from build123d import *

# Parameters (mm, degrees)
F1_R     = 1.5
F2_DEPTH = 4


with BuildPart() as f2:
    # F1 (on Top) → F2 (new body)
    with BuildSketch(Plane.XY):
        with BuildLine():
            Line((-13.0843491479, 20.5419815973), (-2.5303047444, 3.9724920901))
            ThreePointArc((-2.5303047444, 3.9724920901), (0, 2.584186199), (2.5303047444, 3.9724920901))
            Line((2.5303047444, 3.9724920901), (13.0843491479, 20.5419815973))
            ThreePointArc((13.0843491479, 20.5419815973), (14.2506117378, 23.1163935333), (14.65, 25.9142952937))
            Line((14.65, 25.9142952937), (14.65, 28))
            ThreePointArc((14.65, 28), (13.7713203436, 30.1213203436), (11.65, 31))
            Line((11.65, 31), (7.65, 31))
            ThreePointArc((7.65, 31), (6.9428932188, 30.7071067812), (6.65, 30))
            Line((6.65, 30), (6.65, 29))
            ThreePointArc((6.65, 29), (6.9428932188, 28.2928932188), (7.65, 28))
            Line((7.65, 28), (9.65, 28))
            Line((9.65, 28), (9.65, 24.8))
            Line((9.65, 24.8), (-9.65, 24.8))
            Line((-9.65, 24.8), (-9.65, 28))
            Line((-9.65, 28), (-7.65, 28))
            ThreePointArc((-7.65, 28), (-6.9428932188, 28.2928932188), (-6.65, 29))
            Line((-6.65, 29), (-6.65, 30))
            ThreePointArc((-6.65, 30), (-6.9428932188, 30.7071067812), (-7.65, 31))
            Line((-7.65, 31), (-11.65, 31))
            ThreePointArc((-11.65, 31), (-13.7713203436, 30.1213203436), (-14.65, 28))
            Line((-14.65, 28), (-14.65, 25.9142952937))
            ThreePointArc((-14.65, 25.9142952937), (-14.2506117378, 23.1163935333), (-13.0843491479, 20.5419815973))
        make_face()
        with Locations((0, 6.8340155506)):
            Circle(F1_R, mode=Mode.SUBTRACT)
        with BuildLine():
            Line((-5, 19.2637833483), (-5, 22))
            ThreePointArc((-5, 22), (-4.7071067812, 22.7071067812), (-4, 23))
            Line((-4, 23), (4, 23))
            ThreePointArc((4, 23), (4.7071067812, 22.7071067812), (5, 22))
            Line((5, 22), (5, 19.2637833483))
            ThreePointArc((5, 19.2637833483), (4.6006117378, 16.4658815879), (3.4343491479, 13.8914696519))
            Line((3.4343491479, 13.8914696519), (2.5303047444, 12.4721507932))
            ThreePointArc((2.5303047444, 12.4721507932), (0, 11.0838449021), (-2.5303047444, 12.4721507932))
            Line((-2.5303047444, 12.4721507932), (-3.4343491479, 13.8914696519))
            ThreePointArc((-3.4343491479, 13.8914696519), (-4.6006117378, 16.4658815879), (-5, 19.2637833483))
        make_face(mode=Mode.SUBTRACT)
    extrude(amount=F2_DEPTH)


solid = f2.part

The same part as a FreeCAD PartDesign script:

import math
import FreeCAD as App
import Part
import Sketcher

V = App.Vector
Q = App.Units.Quantity

doc = App.newDocument("Part")
body = doc.addObject("PartDesign::Body", "Body")

sketch1 = body.newObject("Sketcher::SketchObject", "Sketch")
sketch1.AttachmentSupport = (doc.getObject("XY_Plane"), [""])
sketch1.MapMode = "FlatFace"
sketch1.addGeometry([
    Part.LineSegment(V(-13.084349, 20.541982, 0), V(-2.530305, 3.972492, 0)),
    Part.ArcOfCircle(Part.Circle(V(0, 5.584186, 0), V(0, 0, 1), 3), math.radians(-147.504636), math.radians(-32.495364)),
    Part.LineSegment(V(2.530305, 3.972492, 0), V(13.084349, 20.541982, 0)),
    Part.ArcOfCircle(Part.Circle(V(4.65, 25.914295, 0), V(0, 0, 1), 10), math.radians(-32.495364), math.radians(0)),
    Part.LineSegment(V(14.65, 25.914295, 0), V(14.65, 28, 0)),
    Part.ArcOfCircle(Part.Circle(V(11.65, 28, 0), V(0, 0, 1), 3), math.radians(0), math.radians(90)),
    Part.LineSegment(V(11.65, 31, 0), V(7.65, 31, 0)),
    Part.ArcOfCircle(Part.Circle(V(7.65, 30, 0), V(0, 0, 1), 1), math.radians(90), math.radians(180)),
    Part.LineSegment(V(6.65, 30, 0), V(6.65, 29, 0)),
    Part.ArcOfCircle(Part.Circle(V(7.65, 29, 0), V(0, 0, 1), 1), math.radians(180), math.radians(270)),
    Part.LineSegment(V(7.65, 28, 0), V(9.65, 28, 0)),
    Part.LineSegment(V(9.65, 28, 0), V(9.65, 24.8, 0)),
    Part.LineSegment(V(9.65, 24.8, 0), V(-9.65, 24.8, 0)),
    Part.LineSegment(V(-9.65, 24.8, 0), V(-9.65, 28, 0)),
    Part.LineSegment(V(-9.65, 28, 0), V(-7.65, 28, 0)),
    Part.ArcOfCircle(Part.Circle(V(-7.65, 29, 0), V(0, 0, 1), 1), math.radians(-90), math.radians(0)),
    Part.LineSegment(V(-6.65, 29, 0), V(-6.65, 30, 0)),
    Part.ArcOfCircle(Part.Circle(V(-7.65, 30, 0), V(0, 0, 1), 1), math.radians(0), math.radians(90)),
    Part.LineSegment(V(-7.65, 31, 0), V(-11.65, 31, 0)),
    Part.ArcOfCircle(Part.Circle(V(-11.65, 28, 0), V(0, 0, 1), 3), math.radians(90), math.radians(180)),
    Part.LineSegment(V(-14.65, 28, 0), V(-14.65, 25.914295, 0)),
    Part.ArcOfCircle(Part.Circle(V(-4.65, 25.914295, 0), V(0, 0, 1), 10), math.radians(180), math.radians(212.495364)),
    Part.Circle(V(0, 6.834016, 0), V(0, 0, 1), 1.5),
    Part.ArcOfCircle(Part.Circle(V(5, 19.263783, 0), V(0, 0, 1), 10), math.radians(180), math.radians(212.495364)),
    Part.LineSegment(V(-5, 19.263783, 0), V(-5, 22, 0)),
    Part.ArcOfCircle(Part.Circle(V(-4, 22, 0), V(0, 0, 1), 1), math.radians(90), math.radians(180)),
    Part.LineSegment(V(-4, 23, 0), V(4, 23, 0)),
    Part.ArcOfCircle(Part.Circle(V(4, 22, 0), V(0, 0, 1), 1), math.radians(0), math.radians(90)),
    Part.LineSegment(V(5, 22, 0), V(5, 19.263783, 0)),
    Part.ArcOfCircle(Part.Circle(V(-5, 19.263783, 0), V(0, 0, 1), 10), math.radians(-32.495364), math.radians(0)),
    Part.LineSegment(V(3.434349, 13.89147, 0), V(2.530305, 12.472151, 0)),
    Part.ArcOfCircle(Part.Circle(V(0, 14.083845, 0), V(0, 0, 1), 3), math.radians(-147.504636), math.radians(-32.495364)),
    Part.LineSegment(V(-2.530305, 12.472151, 0), V(-3.434349, 13.89147, 0)),
], False)
sketch1.addConstraint([
    Sketcher.Constraint("Tangent", 0, 2, 1, 1),
    Sketcher.Constraint("Tangent", 1, 2, 2, 1),
    Sketcher.Constraint("Tangent", 2, 2, 3, 1),
    Sketcher.Constraint("Tangent", 3, 2, 4, 1),
    Sketcher.Constraint("Tangent", 4, 2, 5, 1),
    Sketcher.Constraint("Tangent", 5, 2, 6, 1),
    Sketcher.Constraint("Tangent", 6, 2, 7, 1),
    Sketcher.Constraint("Tangent", 7, 2, 8, 1),
    Sketcher.Constraint("Tangent", 8, 2, 9, 1),
    Sketcher.Constraint("Tangent", 9, 2, 10, 1),
    Sketcher.Constraint("Coincident", 10, 2, 11, 1),
    Sketcher.Constraint("Coincident", 11, 2, 12, 1),
    Sketcher.Constraint("Coincident", 12, 2, 13, 1),
    Sketcher.Constraint("Coincident", 13, 2, 14, 1),
    Sketcher.Constraint("Tangent", 14, 2, 15, 1),
    Sketcher.Constraint("Tangent", 15, 2, 16, 1),
    Sketcher.Constraint("Tangent", 16, 2, 17, 1),
    Sketcher.Constraint("Tangent", 17, 2, 18, 1),
    Sketcher.Constraint("Tangent", 18, 2, 19, 1),
    Sketcher.Constraint("Tangent", 19, 2, 20, 1),
    Sketcher.Constraint("Tangent", 20, 2, 21, 1),
    Sketcher.Constraint("Tangent", 21, 2, 0, 1),
    Sketcher.Constraint("Tangent", 23, 1, 24, 1),
    Sketcher.Constraint("Tangent", 24, 2, 25, 2),
    Sketcher.Constraint("Tangent", 25, 1, 26, 1),
    Sketcher.Constraint("Tangent", 26, 2, 27, 2),
    Sketcher.Constraint("Tangent", 27, 1, 28, 1),
    Sketcher.Constraint("Tangent", 28, 2, 29, 2),
    Sketcher.Constraint("Tangent", 29, 1, 30, 1),
    Sketcher.Constraint("Tangent", 30, 2, 31, 2),
    Sketcher.Constraint("Tangent", 31, 1, 32, 1),
    Sketcher.Constraint("Tangent", 32, 2, 23, 2),
    Sketcher.Constraint("Vertical", 4),
    Sketcher.Constraint("Horizontal", 6),
    Sketcher.Constraint("Vertical", 8),
    Sketcher.Constraint("Horizontal", 10),
    Sketcher.Constraint("Vertical", 11),
    Sketcher.Constraint("Horizontal", 12),
    Sketcher.Constraint("Vertical", 13),
    Sketcher.Constraint("Horizontal", 14),
    Sketcher.Constraint("Vertical", 16),
    Sketcher.Constraint("Horizontal", 18),
    Sketcher.Constraint("Vertical", 20),
    Sketcher.Constraint("Vertical", 24),
    Sketcher.Constraint("Horizontal", 26),
    Sketcher.Constraint("Vertical", 28),
    Sketcher.Constraint("Coincident", 23, 1, 29, 3),
    Sketcher.Constraint("Equal", 1, 5),
    Sketcher.Constraint("Equal", 7, 9),
    Sketcher.Constraint("Equal", 9, 15),
    Sketcher.Constraint("Equal", 15, 17),
    Sketcher.Constraint("Equal", 5, 19),
    Sketcher.Constraint("Equal", 3, 21),
    Sketcher.Constraint("Equal", 21, 23),
    Sketcher.Constraint("Equal", 17, 25),
    Sketcher.Constraint("Equal", 25, 27),
    Sketcher.Constraint("Equal", 23, 29),
    Sketcher.Constraint("Equal", 19, 31),
    Sketcher.Constraint("Symmetric", 9, 3, 15, 3, -2),
    Sketcher.Constraint("Symmetric", 5, 3, 19, 3, -2),
    Sketcher.Constraint("Symmetric", 0, 2, 1, 2, -2),
    Sketcher.Constraint("Symmetric", 30, 2, 31, 1, -2),
    Sketcher.Constraint("PointOnObject", 22, 3, -2),
    Sketcher.Constraint("Parallel", 2, 30),
    Sketcher.Constraint("Horizontal", 4, 2, 9, 2),
    Sketcher.Constraint("Equal", 10, 14),
    Sketcher.Constraint("Diameter", 22, Q("3 mm")),
    Sketcher.Constraint("Radius", 1, Q("3 mm")),
    Sketcher.Constraint("Radius", 3, Q("10 mm")),
    Sketcher.Constraint("Radius", 7, Q("1 mm")),
    Sketcher.Constraint("DistanceX", 6, 2, 6, 1, Q("4 mm")),
    Sketcher.Constraint("DistanceX", 10, 1, 10, 2, Q("2 mm")),
    Sketcher.Constraint("DistanceX", 12, 2, 12, 1, Q("19.3 mm")),
    Sketcher.Constraint("DistanceY", 11, 2, 11, 1, Q("3.2 mm")),
    Sketcher.Constraint("DistanceY", -1, 1, 5, 3, Q("28 mm")),
    Sketcher.Constraint("DistanceY", -1, 1, 25, 3, Q("22 mm")),
    Sketcher.Constraint("DistanceY", 23, 3, 2, 2, Q("1.278198 mm")),
    Sketcher.Constraint("Distance", 0, Q("19.64525 mm")),
    Sketcher.Constraint("DistanceY", 4, 1, 4, 2, Q("2.085705 mm")),
    Sketcher.Constraint("DistanceY", 1, 3, 22, 3, Q("1.249829 mm")),
])
pad1 = body.newObject("PartDesign::Pad", "Pad")
pad1.Profile = sketch1
pad1.Length = 4

doc.recompute()
